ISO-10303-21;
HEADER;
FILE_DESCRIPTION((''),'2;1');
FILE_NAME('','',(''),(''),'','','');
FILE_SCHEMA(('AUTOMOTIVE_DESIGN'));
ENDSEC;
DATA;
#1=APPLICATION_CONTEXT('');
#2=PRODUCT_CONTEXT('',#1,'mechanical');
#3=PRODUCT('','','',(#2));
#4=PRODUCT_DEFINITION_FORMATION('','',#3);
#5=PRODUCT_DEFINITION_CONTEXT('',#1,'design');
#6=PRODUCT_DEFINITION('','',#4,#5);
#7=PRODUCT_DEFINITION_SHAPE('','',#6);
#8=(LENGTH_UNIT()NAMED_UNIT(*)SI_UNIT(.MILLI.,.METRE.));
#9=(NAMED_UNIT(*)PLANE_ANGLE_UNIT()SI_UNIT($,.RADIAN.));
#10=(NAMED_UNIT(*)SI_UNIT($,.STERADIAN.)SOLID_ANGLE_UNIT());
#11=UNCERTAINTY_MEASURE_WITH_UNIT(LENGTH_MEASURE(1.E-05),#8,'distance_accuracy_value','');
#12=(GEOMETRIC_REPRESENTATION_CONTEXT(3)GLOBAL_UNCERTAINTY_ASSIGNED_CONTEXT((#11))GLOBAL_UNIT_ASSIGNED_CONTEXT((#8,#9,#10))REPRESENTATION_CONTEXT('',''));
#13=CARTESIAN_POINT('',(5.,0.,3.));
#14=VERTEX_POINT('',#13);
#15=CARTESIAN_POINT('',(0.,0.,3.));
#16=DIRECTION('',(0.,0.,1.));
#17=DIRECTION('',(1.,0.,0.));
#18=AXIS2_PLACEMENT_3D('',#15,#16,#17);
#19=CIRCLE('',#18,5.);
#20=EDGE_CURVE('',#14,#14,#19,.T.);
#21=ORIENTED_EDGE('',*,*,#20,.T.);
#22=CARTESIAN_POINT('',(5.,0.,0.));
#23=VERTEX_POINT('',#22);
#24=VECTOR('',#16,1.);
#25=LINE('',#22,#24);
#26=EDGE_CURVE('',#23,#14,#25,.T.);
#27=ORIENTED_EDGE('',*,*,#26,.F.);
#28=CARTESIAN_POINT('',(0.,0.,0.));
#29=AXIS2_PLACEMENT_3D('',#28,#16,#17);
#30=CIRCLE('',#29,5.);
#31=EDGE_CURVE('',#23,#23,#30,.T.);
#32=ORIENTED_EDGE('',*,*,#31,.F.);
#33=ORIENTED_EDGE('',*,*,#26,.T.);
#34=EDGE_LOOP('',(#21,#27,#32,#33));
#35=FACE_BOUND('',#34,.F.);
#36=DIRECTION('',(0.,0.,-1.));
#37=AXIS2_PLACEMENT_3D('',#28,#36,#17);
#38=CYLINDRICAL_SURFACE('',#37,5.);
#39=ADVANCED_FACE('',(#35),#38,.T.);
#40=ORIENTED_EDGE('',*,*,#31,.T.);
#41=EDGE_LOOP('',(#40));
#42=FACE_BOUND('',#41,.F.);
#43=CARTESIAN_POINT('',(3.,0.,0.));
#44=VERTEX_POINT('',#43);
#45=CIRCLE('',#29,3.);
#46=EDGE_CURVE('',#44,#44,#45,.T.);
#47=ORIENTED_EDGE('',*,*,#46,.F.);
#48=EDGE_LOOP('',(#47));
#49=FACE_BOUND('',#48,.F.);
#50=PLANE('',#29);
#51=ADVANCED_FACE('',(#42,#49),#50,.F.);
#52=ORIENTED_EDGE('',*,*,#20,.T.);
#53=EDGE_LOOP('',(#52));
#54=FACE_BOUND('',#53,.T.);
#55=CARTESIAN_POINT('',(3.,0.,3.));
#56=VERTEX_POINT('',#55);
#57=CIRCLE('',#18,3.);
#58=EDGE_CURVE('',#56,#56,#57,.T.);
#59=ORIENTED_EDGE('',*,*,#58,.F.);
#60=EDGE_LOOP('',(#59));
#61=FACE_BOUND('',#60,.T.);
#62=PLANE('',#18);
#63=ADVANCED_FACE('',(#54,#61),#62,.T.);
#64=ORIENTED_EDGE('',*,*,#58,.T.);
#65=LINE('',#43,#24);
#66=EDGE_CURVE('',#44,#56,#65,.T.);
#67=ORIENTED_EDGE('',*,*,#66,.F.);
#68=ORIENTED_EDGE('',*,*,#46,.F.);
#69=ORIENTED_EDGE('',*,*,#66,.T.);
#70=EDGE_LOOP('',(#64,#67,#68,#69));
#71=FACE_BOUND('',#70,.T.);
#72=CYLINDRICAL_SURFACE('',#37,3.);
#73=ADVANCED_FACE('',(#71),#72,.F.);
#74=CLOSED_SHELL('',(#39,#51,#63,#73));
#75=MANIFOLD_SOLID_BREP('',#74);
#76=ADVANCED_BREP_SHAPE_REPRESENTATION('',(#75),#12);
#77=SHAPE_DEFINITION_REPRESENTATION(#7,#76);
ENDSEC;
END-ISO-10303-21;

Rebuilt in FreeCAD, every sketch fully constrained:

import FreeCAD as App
import Part
import Sketcher
Q = App.Units.Quantity

doc = App.newDocument("Part")
body = doc.addObject("PartDesign::Body", "Body")

sketch1 = doc.addObject("Sketcher::SketchObject", "Sketch")
body.addObject(sketch1)
sketch1.AttachmentSupport = (doc.XY_Plane, [""])
sketch1.MapMode = "FlatFace"
sketch1.addGeometry(Part.Circle(App.Vector(0, 0, 0), App.Vector(0, 0, 1), 5), False)
sketch1.addGeometry(Part.Circle(App.Vector(0, 0, 0), App.Vector(0, 0, 1), 3), False)
sketch1.addConstraint(Sketcher.Constraint("Coincident", 0, 3, -1, 1))
sketch1.addConstraint(Sketcher.Constraint("Coincident", 1, 3, -1, 1))
sketch1.addConstraint(Sketcher.Constraint("Diameter", 0, Q("10 mm")))
sketch1.addConstraint(Sketcher.Constraint("Diameter", 1, Q("6 mm")))
pad1 = doc.addObject("PartDesign::Pad", "Pad")
body.addObject(pad1)
pad1.Profile = sketch1
pad1.Length = 3

doc.recompute()
